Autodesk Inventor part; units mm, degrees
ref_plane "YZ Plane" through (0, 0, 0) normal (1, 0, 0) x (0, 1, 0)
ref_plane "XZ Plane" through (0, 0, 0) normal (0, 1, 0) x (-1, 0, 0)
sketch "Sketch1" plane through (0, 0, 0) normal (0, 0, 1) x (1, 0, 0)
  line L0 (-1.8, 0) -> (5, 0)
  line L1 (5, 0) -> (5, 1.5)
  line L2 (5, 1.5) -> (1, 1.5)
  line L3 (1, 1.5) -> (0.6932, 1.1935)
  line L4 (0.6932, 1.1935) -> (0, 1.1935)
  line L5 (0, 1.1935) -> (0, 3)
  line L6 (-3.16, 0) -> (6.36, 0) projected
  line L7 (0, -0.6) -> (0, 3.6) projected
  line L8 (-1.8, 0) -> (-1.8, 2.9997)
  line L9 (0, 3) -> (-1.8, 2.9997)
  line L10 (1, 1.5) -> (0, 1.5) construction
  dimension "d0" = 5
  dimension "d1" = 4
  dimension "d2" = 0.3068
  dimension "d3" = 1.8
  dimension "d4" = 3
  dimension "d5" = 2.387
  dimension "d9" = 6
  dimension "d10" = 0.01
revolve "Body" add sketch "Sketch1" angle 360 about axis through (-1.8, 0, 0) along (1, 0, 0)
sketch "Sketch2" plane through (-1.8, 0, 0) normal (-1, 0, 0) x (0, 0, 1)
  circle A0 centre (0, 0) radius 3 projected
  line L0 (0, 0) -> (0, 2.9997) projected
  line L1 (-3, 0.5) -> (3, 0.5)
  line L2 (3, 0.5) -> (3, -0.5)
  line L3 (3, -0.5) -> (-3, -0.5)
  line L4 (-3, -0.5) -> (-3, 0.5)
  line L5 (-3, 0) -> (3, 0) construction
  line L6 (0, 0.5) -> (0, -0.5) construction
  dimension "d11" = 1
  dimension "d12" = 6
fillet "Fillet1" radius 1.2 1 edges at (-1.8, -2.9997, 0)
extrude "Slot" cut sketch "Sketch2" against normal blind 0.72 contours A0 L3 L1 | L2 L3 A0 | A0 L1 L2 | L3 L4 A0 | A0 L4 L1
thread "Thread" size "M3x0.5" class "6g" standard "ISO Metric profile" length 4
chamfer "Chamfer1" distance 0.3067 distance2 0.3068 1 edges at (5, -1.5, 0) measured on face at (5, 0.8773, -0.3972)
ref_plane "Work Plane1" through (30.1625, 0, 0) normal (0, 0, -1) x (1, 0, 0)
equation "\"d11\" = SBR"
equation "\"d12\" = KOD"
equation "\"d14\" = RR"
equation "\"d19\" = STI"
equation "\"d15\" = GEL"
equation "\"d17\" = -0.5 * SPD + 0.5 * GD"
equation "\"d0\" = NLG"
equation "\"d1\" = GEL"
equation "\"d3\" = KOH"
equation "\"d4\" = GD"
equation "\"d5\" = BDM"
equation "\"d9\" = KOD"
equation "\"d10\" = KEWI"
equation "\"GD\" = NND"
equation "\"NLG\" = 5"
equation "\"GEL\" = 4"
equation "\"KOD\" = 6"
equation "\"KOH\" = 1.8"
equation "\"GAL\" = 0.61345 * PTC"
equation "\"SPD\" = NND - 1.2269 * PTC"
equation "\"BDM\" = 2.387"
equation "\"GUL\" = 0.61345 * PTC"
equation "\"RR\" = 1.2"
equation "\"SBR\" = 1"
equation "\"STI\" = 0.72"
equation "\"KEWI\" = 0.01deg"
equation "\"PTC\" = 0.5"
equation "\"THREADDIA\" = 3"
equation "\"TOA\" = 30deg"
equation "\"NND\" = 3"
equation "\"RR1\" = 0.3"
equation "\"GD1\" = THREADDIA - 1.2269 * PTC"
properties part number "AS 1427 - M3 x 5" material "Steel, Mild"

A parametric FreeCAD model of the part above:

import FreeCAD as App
import Part
import Sketcher

V = App.Vector


def edges_at(feature, points):
    """Names of the edges that pass closest to the given points."""
    edges = feature.Shape.Edges
    near = lambda p: min(range(len(edges)), key=lambda i: edges[i].distToShape(Part.Vertex(*p))[0])
    return sorted({f"Edge{near(p) + 1}" for p in points})


def add_polygon(sketch, points):
    """Adds a closed chain of lines whose ends are joined by coincident constraints."""
    first, n = sketch.GeometryCount, len(points)
    for a, b in zip(points, points[1:] + points[:1]):
        sketch.addGeometry(Part.LineSegment(App.Vector(*a, 0), App.Vector(*b, 0)), False)
    for i in range(n):
        sketch.addConstraint(Sketcher.Constraint("Coincident", first + i, 2, first + (i + 1) % n, 1))

doc = App.newDocument("Part")
body = doc.addObject("PartDesign::Body", "Body")

# Sketch on XY plane
sketch1 = body.newObject("Sketcher::SketchObject", "Sketch")
sketch1.AttachmentSupport = (doc.getObject("XY_Plane"), [""])
sketch1.MapMode = "FlatFace"
add_polygon(sketch1, [(-1.8, 2.9997), (-1.8, 0), (5, 0), (5, 1.5), (1, 1.5), (0.6932, 1.1935), (0, 1.1935), (0, 3)])  # lines 0-7
sketch1.addConstraint(Sketcher.Constraint("Vertical", 0))
sketch1.addConstraint(Sketcher.Constraint("Horizontal", 1))
sketch1.addConstraint(Sketcher.Constraint("Vertical", 2))
sketch1.addConstraint(Sketcher.Constraint("Horizontal", 3))
sketch1.addConstraint(Sketcher.Constraint("Horizontal", 5))
sketch1.addConstraint(Sketcher.Constraint("Vertical", 6))
sketch1.addConstraint(Sketcher.Constraint("PointOnObject", 0, 2, -1))
sketch1.addConstraint(Sketcher.Constraint("PointOnObject", 5, 2, -2))
sketch1.addConstraint(Sketcher.Constraint("DistanceX", 3, 2, 3, 1, 4.0))
sketch1.addConstraint(Sketcher.Constraint("DistanceX", -1, 1, 1, 2, 5.0))
sketch1.addConstraint(Sketcher.Constraint("DistanceY", -1, 1, 6, 2, 3.0))
sketch1.addConstraint(Sketcher.Constraint("Distance", 7, 1.8))
sketch1.addConstraint(Sketcher.Constraint("DistanceY", 0, 2, 0, 1, 2.9997))
sketch1.addConstraint(Sketcher.Constraint("DistanceY", 2, 1, 2, 2, 1.5))
sketch1.addConstraint(Sketcher.Constraint("DistanceX", 4, 2, 3, 2, 0.3068))
sketch1.addConstraint(Sketcher.Constraint("DistanceY", 4, 2, 3, 2, 0.3065))
revolution = body.newObject("PartDesign::Revolution", "Revolution")
revolution.Profile = sketch1
revolution.ReferenceAxis = (sketch1, ["H_Axis"])
revolution.Angle = 360
doc.recompute()

fillet = body.newObject("PartDesign::Fillet", "Fillet")
fillet.Base = (revolution, edges_at(revolution, [(-1.8, -3, 0)]))
fillet.Radius = 1.2

# Sketch on YZ plane
sketch2 = body.newObject("Sketcher::SketchObject", "Sketch001")
sketch2.AttachmentSupport = (doc.getObject("YZ_Plane"), [""])
sketch2.MapMode = "FlatFace"
sketch2.AttachmentOffset = App.Placement(V(0, 0, -1.8), App.Rotation())
add_polygon(sketch2, [(-0.5, 3), (0.5, 3), (0.5, -3), (-0.5, -3)])  # lines 0-3
sketch2.addConstraint(Sketcher.Constraint("Horizontal", 0))
sketch2.addConstraint(Sketcher.Constraint("Vertical", 1))
sketch2.addConstraint(Sketcher.Constraint("Horizontal", 2))
sketch2.addConstraint(Sketcher.Constraint("Vertical", 3))
sketch2.addConstraint(Sketcher.Constraint("Symmetric", 0, 2, 2, 2, -1, 1))
sketch2.addConstraint(Sketcher.Constraint("DistanceX", 0, 1, 0, 2, 1.0))
sketch2.addConstraint(Sketcher.Constraint("DistanceY", 1, 2, 1, 1, 6.0))
pocket1 = body.newObject("PartDesign::Pocket", "Pocket")
pocket1.Profile = sketch2
pocket1.Length = 0.72
pocket1.Reversed = True
doc.recompute()

chamfer = body.newObject("PartDesign::Chamfer", "Chamfer")
chamfer.Base = (pocket1, edges_at(pocket1, [(5, -1.5, 0)]))
chamfer.ChamferType = "Two distances"
chamfer.Size = 0.3067
chamfer.Size2 = 0.3068

doc.recompute()
